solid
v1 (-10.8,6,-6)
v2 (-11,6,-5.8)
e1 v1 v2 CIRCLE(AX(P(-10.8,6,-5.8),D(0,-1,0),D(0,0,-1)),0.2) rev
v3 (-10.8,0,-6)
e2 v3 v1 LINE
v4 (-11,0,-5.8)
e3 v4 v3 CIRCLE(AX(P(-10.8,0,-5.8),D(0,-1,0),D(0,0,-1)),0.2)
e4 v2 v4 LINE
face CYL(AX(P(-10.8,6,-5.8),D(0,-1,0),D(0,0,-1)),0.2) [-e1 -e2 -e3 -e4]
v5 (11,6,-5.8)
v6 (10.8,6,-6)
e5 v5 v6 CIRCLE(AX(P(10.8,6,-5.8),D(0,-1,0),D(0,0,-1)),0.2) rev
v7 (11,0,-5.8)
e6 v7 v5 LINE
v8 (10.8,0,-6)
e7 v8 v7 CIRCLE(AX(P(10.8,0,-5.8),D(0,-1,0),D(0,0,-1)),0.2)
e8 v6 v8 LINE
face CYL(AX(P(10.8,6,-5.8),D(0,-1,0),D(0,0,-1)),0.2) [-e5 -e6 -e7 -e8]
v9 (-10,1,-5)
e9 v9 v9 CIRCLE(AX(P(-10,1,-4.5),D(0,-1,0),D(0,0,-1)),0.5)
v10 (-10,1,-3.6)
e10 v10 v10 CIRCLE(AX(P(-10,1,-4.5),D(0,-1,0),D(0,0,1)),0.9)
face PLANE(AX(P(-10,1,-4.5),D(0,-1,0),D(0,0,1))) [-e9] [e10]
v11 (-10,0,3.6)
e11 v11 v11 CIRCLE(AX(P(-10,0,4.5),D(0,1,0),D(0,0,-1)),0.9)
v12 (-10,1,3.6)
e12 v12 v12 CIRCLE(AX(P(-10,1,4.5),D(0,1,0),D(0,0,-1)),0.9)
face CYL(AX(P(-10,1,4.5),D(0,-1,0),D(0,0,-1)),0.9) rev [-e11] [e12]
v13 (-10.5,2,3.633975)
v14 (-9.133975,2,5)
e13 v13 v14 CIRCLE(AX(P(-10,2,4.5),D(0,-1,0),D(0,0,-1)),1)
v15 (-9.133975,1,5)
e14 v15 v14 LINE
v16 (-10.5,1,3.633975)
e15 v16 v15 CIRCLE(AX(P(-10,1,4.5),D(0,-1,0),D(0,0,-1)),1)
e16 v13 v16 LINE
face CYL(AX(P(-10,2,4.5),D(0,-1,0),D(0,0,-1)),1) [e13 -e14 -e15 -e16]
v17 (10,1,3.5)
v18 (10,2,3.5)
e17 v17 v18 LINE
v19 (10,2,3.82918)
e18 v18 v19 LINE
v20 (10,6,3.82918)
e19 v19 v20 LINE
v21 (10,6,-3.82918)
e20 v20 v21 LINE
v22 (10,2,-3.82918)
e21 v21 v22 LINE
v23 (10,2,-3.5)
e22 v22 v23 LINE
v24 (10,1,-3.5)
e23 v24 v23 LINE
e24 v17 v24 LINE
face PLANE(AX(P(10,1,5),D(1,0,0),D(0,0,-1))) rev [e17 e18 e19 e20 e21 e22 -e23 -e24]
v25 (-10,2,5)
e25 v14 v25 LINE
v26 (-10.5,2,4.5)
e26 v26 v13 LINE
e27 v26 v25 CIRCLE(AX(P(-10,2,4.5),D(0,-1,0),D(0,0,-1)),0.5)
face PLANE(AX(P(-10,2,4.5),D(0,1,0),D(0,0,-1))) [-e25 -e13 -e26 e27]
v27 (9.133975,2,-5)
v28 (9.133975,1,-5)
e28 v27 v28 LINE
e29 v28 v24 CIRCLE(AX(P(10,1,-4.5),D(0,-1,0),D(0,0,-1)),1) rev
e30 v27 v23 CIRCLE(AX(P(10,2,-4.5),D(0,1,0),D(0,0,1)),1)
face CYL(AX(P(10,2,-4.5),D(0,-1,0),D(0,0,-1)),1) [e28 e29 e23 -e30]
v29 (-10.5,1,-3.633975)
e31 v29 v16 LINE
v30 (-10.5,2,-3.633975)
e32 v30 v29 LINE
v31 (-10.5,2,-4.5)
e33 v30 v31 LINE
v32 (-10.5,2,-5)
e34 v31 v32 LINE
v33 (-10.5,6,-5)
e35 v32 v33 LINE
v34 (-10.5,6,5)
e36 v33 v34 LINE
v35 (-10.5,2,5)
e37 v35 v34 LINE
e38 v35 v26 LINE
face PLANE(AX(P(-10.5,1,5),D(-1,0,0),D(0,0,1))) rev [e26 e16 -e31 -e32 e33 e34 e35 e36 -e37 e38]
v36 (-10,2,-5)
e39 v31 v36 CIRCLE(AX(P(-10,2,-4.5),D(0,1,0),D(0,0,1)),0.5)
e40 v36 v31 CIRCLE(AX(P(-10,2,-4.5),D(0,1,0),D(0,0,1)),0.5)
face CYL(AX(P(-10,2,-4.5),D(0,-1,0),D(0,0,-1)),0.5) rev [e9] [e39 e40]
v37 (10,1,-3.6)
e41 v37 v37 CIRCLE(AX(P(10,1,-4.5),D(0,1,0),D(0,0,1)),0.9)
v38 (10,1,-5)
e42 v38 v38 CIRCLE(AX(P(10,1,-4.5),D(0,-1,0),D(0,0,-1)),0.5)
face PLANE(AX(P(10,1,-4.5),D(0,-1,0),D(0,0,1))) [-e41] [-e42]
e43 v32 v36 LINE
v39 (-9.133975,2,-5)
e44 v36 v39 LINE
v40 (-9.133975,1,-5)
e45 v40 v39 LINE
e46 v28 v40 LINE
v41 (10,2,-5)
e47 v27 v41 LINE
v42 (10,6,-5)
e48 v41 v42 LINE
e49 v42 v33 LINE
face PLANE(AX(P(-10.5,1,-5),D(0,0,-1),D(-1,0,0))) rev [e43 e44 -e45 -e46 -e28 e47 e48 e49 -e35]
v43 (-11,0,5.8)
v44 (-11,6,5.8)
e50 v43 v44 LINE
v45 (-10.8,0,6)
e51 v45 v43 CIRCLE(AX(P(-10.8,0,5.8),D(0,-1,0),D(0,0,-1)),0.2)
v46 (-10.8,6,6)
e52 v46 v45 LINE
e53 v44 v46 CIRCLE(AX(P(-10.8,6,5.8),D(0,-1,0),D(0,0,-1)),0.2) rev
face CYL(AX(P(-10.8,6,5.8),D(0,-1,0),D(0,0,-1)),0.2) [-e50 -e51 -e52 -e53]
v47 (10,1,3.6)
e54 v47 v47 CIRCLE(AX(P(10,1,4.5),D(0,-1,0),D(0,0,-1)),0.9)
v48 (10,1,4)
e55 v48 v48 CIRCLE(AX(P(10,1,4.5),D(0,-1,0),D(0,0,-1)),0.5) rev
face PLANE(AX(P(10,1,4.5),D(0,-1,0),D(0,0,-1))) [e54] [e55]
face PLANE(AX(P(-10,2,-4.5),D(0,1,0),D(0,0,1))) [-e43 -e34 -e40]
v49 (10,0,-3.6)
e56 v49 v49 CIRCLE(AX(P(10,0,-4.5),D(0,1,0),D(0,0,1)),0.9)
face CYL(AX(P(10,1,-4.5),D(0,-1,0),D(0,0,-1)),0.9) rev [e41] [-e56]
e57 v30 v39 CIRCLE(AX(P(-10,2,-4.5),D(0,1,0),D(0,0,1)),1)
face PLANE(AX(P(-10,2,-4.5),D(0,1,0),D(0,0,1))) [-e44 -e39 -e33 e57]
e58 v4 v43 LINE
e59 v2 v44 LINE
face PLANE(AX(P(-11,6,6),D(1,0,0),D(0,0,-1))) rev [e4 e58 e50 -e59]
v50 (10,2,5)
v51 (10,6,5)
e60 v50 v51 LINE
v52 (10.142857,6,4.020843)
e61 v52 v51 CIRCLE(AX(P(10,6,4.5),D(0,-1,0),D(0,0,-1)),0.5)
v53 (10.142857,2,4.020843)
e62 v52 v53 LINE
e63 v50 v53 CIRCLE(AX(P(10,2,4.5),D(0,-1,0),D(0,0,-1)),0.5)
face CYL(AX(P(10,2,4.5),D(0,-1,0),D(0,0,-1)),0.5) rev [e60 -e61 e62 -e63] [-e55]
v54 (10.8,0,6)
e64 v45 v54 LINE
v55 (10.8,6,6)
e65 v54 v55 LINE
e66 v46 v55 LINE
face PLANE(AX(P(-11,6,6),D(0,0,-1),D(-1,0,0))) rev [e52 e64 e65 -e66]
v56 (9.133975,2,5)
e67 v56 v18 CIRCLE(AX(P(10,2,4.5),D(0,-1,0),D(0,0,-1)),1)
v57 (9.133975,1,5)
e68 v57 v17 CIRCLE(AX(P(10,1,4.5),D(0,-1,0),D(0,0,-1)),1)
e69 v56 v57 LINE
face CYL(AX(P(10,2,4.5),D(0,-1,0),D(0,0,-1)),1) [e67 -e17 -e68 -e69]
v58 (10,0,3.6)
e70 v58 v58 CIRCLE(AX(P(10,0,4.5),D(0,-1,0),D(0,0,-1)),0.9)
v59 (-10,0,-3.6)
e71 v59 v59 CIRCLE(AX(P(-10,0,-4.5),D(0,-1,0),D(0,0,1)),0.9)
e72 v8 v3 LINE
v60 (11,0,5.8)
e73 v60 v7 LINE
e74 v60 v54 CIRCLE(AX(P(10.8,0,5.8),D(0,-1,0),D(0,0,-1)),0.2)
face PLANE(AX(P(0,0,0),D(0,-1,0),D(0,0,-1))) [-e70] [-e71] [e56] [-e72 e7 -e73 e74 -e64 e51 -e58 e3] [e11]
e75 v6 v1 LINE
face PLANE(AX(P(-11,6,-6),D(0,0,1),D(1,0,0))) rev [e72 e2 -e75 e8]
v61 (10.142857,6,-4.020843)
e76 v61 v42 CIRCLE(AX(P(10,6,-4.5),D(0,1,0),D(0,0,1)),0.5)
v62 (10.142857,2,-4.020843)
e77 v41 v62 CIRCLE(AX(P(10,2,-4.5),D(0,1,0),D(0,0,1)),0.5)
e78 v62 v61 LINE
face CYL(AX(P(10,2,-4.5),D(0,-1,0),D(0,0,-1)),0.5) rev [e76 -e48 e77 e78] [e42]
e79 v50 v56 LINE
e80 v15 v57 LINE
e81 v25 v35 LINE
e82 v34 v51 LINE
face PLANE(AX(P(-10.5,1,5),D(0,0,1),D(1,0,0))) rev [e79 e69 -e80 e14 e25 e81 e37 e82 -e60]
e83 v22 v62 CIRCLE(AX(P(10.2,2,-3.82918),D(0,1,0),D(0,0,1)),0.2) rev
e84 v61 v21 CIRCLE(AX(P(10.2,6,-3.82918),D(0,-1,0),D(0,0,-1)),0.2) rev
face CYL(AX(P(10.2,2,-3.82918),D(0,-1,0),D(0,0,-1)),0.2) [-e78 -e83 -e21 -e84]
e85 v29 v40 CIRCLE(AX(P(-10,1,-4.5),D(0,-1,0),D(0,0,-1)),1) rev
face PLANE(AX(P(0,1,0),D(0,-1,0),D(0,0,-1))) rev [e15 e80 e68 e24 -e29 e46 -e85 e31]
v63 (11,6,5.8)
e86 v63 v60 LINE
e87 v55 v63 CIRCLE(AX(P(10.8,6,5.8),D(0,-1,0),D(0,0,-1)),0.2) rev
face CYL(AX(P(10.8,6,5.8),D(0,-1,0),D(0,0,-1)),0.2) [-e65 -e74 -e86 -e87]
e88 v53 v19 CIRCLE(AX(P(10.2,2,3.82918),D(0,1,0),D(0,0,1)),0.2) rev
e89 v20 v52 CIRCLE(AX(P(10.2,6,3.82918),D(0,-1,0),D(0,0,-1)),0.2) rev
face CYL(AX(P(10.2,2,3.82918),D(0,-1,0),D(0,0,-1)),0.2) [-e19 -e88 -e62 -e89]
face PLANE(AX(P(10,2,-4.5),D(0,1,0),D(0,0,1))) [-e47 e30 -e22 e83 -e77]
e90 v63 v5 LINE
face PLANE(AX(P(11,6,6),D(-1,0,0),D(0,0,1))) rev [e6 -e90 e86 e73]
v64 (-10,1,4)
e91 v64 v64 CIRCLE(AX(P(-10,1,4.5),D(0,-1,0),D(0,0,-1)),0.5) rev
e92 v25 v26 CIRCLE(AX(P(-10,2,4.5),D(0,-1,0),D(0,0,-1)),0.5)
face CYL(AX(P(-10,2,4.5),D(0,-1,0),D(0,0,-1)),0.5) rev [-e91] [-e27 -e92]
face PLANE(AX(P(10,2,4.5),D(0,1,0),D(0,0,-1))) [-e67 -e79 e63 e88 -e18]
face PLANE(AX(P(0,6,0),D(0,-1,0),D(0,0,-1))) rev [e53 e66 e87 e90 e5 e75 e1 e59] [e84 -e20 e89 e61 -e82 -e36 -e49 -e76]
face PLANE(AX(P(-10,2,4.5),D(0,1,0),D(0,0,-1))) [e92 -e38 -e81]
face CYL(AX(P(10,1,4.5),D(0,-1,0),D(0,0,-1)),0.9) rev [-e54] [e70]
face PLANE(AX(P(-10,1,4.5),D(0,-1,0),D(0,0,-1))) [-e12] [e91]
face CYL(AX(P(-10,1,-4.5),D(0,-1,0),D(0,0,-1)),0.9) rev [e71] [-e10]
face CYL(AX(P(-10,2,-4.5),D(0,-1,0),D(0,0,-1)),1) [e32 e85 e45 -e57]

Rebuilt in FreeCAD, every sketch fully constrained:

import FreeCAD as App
import Part
import Sketcher

V = App.Vector
Q = App.Units.Quantity


def edges_at(feature, points):
    """Names of the edges that pass closest to the given points."""
    edges = feature.Shape.Edges
    near = lambda p: min(range(len(edges)), key=lambda i: edges[i].distToShape(Part.Vertex(*p))[0])
    return sorted({f"Edge{near(p) + 1}" for p in points})

doc = App.newDocument("Part")
body = doc.addObject("PartDesign::Body", "Body")

sketch1 = body.newObject("Sketcher::SketchObject", "Sketch")
sketch1.AttachmentSupport = (doc.getObject("XZ_Plane"), [""])
sketch1.MapMode = "FlatFace"
sketch1.addGeometry(Part.LineSegment(V(-11, -6, 0), V(-11, 6, 0)), False)
sketch1.addGeometry(Part.LineSegment(V(-11, 6, 0), V(11, 6, 0)), False)
sketch1.addGeometry(Part.LineSegment(V(11, 6, 0), V(11, -6, 0)), False)
sketch1.addGeometry(Part.LineSegment(V(11, -6, 0), V(-11, -6, 0)), False)
sketch1.addConstraint(Sketcher.Constraint("Coincident", 0, 2, 1, 1))
sketch1.addConstraint(Sketcher.Constraint("Coincident", 1, 2, 2, 1))
sketch1.addConstraint(Sketcher.Constraint("Coincident", 2, 2, 3, 1))
sketch1.addConstraint(Sketcher.Constraint("Coincident", 3, 2, 0, 1))
sketch1.addConstraint(Sketcher.Constraint("Vertical", 0))
sketch1.addConstraint(Sketcher.Constraint("Horizontal", 1))
sketch1.addConstraint(Sketcher.Constraint("Vertical", 2))
sketch1.addConstraint(Sketcher.Constraint("Horizontal", 3))
sketch1.addConstraint(Sketcher.Constraint("Symmetric", 0, 2, 2, 2, -1, 1))
sketch1.addConstraint(Sketcher.Constraint("DistanceX", 1, 1, 1, 2, Q("22 mm")))
sketch1.addConstraint(Sketcher.Constraint("DistanceY", 0, 1, 0, 2, Q("12 mm")))
pad1 = body.newObject("PartDesign::Pad", "Pad")
pad1.Profile = sketch1
pad1.Length = 6
pad1.Reversed = True
doc.recompute()

fillet = body.newObject("PartDesign::Fillet", "Fillet")
fillet.Base = (pad1, edges_at(pad1, [
    (11, 3, 6),
    (-11, 3, 6),
    (-11, 3, -6),
    (11, 3, -6),
]))
fillet.Radius = 0.2

sketch2 = body.newObject("Sketcher::SketchObject", "Sketch001")
sketch2.AttachmentSupport = (doc.getObject("XZ_Plane"), [""])
sketch2.MapMode = "FlatFace"
sketch2.AttachmentOffset = App.Placement(V(0, 0, -6), App.Rotation())
sketch2.addGeometry(Part.LineSegment(V(-10, -5, 0), V(-10, 5, 0)), False)
sketch2.addGeometry(Part.LineSegment(V(-10, 5, 0), V(10, 5, 0)), False)
sketch2.addGeometry(Part.LineSegment(V(10, 5, 0), V(10, -5, 0)), False)
sketch2.addGeometry(Part.LineSegment(V(10, -5, 0), V(-10, -5, 0)), False)
sketch2.addConstraint(Sketcher.Constraint("Coincident", 0, 2, 1, 1))
sketch2.addConstraint(Sketcher.Constraint("Coincident", 1, 2, 2, 1))
sketch2.addConstraint(Sketcher.Constraint("Coincident", 2, 2, 3, 1))
sketch2.addConstraint(Sketcher.Constraint("Coincident", 3, 2, 0, 1))
sketch2.addConstraint(Sketcher.Constraint("Vertical", 0))
sketch2.addConstraint(Sketcher.Constraint("Horizontal", 1))
sketch2.addConstraint(Sketcher.Constraint("Vertical", 2))
sketch2.addConstraint(Sketcher.Constraint("Horizontal", 3))
sketch2.addConstraint(Sketcher.Constraint("DistanceY", 0, 1, 0, 2, Q("10 mm")))
sketch2.addConstraint(Sketcher.Constraint("DistanceX", 1, 1, 1, 2, Q("20.5 mm")))
sketch2.addConstraint(Sketcher.Constraint("DistanceY", -1, 1, 0, 2, Q("5 mm")))
sketch2.addConstraint(Sketcher.Constraint("DistanceX", -1, 1, 1, 2, Q("10 mm")))
pocket1 = body.newObject("PartDesign::Pocket", "Pocket")
pocket1.Profile = sketch2
pocket1.Length = 5
pocket1.Reversed = True

sketch3 = body.newObject("Sketcher::SketchObject", "Sketch002")
sketch3.AttachmentSupport = (doc.getObject("XZ_Plane"), [""])
sketch3.MapMode = "FlatFace"
sketch3.AttachmentOffset = App.Placement(V(0, 0, -1), App.Rotation())
sketch3.addGeometry(Part.Circle(V(10, -4.5, 0), V(0, 0, 1), 1), False)
sketch3.addGeometry(Part.Circle(V(10, -4.5, 0), V(0, 0, 1), 0.5), False)
sketch3.addConstraint(Sketcher.Constraint("Coincident", 1, 3, 0, 3))
sketch3.addConstraint(Sketcher.Constraint("Diameter", 0, Q("2 mm")))
sketch3.addConstraint(Sketcher.Constraint("Diameter", 1, Q("1 mm")))
sketch3.addConstraint(Sketcher.Constraint("DistanceX", -1, 1, 0, 3, Q("10 mm")))
sketch3.addConstraint(Sketcher.Constraint("DistanceY", 0, 3, -1, 1, Q("4.5 mm")))
pad2 = body.newObject("PartDesign::Pad", "Pad001")
pad2.Profile = sketch3
pad2.Length = 1
pad2.Reversed = True
doc.recompute()

mirrored = body.newObject("PartDesign::Mirrored", "Mirrored")
mirrored.Originals = [pad2]
mirrored.MirrorPlane = (doc.getObject("XY_Plane"), [""])
body.Tip = mirrored

sketch4 = body.newObject("Sketcher::SketchObject", "Sketch003")
sketch4.AttachmentSupport = (doc.getObject("XZ_Plane"), [""])
sketch4.MapMode = "FlatFace"
sketch4.AttachmentOffset = App.Placement(V(0, 0, -1), App.Rotation())
sketch4.addGeometry(Part.Circle(V(-10, -4.5, 0), V(0, 0, 1), 1), False)
sketch4.addGeometry(Part.Circle(V(-10, -4.5, 0), V(0, 0, 1), 0.5), False)
sketch4.addConstraint(Sketcher.Constraint("Coincident", 1, 3, 0, 3))
sketch4.addConstraint(Sketcher.Constraint("Diameter", 0, Q("2 mm")))
sketch4.addConstraint(Sketcher.Constraint("Diameter", 1, Q("1 mm")))
sketch4.addConstraint(Sketcher.Constraint("DistanceX", 0, 3, -1, 1, Q("10 mm")))
sketch4.addConstraint(Sketcher.Constraint("DistanceY", 0, 3, -1, 1, Q("4.5 mm")))
pad3 = body.newObject("PartDesign::Pad", "Pad002")
pad3.Profile = sketch4
pad3.Length = 1
pad3.Reversed = True
doc.recompute()

mirrored2 = body.newObject("PartDesign::Mirrored", "Mirrored001")
mirrored2.Originals = [pad3]
mirrored2.MirrorPlane = (doc.getObject("XY_Plane"), [""])
body.Tip = mirrored2

sketch5 = body.newObject("Sketcher::SketchObject", "Sketch004")
sketch5.AttachmentSupport = (doc.getObject("XZ_Plane"), [""])
sketch5.MapMode = "FlatFace"
sketch5.AttachmentOffset = App.Placement(V(0, 0, -6), App.Rotation())
sketch5.addGeometry(Part.Circle(V(10, -4.5, 0), V(0, 0, 1), 0.5), False)
sketch5.addConstraint(Sketcher.Constraint("Diameter", 0, Q("1 mm")))
sketch5.addConstraint(Sketcher.Constraint("DistanceX", -1, 1, 0, 3, Q("10 mm")))
sketch5.addConstraint(Sketcher.Constraint("DistanceY", 0, 3, -1, 1, Q("4.5 mm")))
pocket2 = body.newObject("PartDesign::Pocket", "Pocket001")
pocket2.Profile = sketch5
pocket2.Type = "ThroughAll"
pocket2.Reversed = True
doc.recompute()

mirrored3 = body.newObject("PartDesign::Mirrored", "Mirrored002")
mirrored3.Originals = [pocket2]
mirrored3.MirrorPlane = (doc.getObject("XY_Plane"), [""])
body.Tip = mirrored3
doc.recompute()

fillet2 = body.newObject("PartDesign::Fillet", "Fillet001")
fillet2.Base = (mirrored3, edges_at(mirrored3, [(10, 4, -4), (10, 4, 4)]))
fillet2.Radius = 0.2
doc.recompute()

mirrored4 = body.newObject("PartDesign::Mirrored", "Mirrored003")
mirrored4.Originals = [pocket2]
mirrored4.MirrorPlane = (doc.getObject("YZ_Plane"), [""])
body.Tip = mirrored4

sketch6 = body.newObject("Sketcher::SketchObject", "Sketch005")
sketch6.AttachmentSupport = (doc.getObject("XZ_Plane"), [""])
sketch6.MapMode = "FlatFace"
sketch6.AttachmentOffset = App.Placement(V(0, 0, -6), App.Rotation())
sketch6.addGeometry(Part.Circle(V(-10, 4.5, 0), V(0, 0, 1), 0.5), False)
sketch6.addConstraint(Sketcher.Constraint("Diameter", 0, Q("1 mm")))
sketch6.addConstraint(Sketcher.Constraint("DistanceX", 0, 3, -1, 1, Q("10 mm")))
sketch6.addConstraint(Sketcher.Constraint("DistanceY", -1, 1, 0, 3, Q("4.5 mm")))
pocket3 = body.newObject("PartDesign::Pocket", "Pocket002")
pocket3.Profile = sketch6
pocket3.Type = "ThroughAll"
pocket3.Reversed = True

sketch7 = body.newObject("Sketcher::SketchObject", "Sketch006")
sketch7.AttachmentSupport = (doc.getObject("XZ_Plane"), [""])
sketch7.MapMode = "FlatFace"
sketch7.addGeometry(Part.Circle(V(10, 4.5, 0), V(0, 0, 1), 0.9), False)
sketch7.addConstraint(Sketcher.Constraint("Diameter", 0, Q("1.8 mm")))
sketch7.addConstraint(Sketcher.Constraint("DistanceX", -1, 1, 0, 3, Q("10 mm")))
sketch7.addConstraint(Sketcher.Constraint("DistanceY", -1, 1, 0, 3, Q("4.5 mm")))
pocket4 = body.newObject("PartDesign::Pocket", "Pocket003")
pocket4.Profile = sketch7
pocket4.Length = 1
doc.recompute()

mirrored5 = body.newObject("PartDesign::Mirrored", "Mirrored004")
mirrored5.Originals = [pocket4]
mirrored5.MirrorPlane = (doc.getObject("YZ_Plane"), [""])
body.Tip = mirrored5
doc.recompute()

mirrored6 = body.newObject("PartDesign::Mirrored", "Mirrored005")
mirrored6.Originals = [pocket4]
mirrored6.MirrorPlane = (doc.getObject("XY_Plane"), [""])
body.Tip = mirrored6

sketch8 = body.newObject("Sketcher::SketchObject", "Sketch007")
sketch8.AttachmentSupport = (doc.getObject("XZ_Plane"), [""])
sketch8.MapMode = "FlatFace"
sketch8.addGeometry(Part.Circle(V(-10, -4.5, 0), V(0, 0, 1), 0.9), False)
sketch8.addConstraint(Sketcher.Constraint("Diameter", 0, Q("1.8 mm")))
sketch8.addConstraint(Sketcher.Constraint("DistanceX", 0, 3, -1, 1, Q("10 mm")))
sketch8.addConstraint(Sketcher.Constraint("DistanceY", 0, 3, -1, 1, Q("4.5 mm")))
pocket5 = body.newObject("PartDesign::Pocket", "Pocket004")
pocket5.Profile = sketch8
pocket5.Length = 1

doc.recompute()
